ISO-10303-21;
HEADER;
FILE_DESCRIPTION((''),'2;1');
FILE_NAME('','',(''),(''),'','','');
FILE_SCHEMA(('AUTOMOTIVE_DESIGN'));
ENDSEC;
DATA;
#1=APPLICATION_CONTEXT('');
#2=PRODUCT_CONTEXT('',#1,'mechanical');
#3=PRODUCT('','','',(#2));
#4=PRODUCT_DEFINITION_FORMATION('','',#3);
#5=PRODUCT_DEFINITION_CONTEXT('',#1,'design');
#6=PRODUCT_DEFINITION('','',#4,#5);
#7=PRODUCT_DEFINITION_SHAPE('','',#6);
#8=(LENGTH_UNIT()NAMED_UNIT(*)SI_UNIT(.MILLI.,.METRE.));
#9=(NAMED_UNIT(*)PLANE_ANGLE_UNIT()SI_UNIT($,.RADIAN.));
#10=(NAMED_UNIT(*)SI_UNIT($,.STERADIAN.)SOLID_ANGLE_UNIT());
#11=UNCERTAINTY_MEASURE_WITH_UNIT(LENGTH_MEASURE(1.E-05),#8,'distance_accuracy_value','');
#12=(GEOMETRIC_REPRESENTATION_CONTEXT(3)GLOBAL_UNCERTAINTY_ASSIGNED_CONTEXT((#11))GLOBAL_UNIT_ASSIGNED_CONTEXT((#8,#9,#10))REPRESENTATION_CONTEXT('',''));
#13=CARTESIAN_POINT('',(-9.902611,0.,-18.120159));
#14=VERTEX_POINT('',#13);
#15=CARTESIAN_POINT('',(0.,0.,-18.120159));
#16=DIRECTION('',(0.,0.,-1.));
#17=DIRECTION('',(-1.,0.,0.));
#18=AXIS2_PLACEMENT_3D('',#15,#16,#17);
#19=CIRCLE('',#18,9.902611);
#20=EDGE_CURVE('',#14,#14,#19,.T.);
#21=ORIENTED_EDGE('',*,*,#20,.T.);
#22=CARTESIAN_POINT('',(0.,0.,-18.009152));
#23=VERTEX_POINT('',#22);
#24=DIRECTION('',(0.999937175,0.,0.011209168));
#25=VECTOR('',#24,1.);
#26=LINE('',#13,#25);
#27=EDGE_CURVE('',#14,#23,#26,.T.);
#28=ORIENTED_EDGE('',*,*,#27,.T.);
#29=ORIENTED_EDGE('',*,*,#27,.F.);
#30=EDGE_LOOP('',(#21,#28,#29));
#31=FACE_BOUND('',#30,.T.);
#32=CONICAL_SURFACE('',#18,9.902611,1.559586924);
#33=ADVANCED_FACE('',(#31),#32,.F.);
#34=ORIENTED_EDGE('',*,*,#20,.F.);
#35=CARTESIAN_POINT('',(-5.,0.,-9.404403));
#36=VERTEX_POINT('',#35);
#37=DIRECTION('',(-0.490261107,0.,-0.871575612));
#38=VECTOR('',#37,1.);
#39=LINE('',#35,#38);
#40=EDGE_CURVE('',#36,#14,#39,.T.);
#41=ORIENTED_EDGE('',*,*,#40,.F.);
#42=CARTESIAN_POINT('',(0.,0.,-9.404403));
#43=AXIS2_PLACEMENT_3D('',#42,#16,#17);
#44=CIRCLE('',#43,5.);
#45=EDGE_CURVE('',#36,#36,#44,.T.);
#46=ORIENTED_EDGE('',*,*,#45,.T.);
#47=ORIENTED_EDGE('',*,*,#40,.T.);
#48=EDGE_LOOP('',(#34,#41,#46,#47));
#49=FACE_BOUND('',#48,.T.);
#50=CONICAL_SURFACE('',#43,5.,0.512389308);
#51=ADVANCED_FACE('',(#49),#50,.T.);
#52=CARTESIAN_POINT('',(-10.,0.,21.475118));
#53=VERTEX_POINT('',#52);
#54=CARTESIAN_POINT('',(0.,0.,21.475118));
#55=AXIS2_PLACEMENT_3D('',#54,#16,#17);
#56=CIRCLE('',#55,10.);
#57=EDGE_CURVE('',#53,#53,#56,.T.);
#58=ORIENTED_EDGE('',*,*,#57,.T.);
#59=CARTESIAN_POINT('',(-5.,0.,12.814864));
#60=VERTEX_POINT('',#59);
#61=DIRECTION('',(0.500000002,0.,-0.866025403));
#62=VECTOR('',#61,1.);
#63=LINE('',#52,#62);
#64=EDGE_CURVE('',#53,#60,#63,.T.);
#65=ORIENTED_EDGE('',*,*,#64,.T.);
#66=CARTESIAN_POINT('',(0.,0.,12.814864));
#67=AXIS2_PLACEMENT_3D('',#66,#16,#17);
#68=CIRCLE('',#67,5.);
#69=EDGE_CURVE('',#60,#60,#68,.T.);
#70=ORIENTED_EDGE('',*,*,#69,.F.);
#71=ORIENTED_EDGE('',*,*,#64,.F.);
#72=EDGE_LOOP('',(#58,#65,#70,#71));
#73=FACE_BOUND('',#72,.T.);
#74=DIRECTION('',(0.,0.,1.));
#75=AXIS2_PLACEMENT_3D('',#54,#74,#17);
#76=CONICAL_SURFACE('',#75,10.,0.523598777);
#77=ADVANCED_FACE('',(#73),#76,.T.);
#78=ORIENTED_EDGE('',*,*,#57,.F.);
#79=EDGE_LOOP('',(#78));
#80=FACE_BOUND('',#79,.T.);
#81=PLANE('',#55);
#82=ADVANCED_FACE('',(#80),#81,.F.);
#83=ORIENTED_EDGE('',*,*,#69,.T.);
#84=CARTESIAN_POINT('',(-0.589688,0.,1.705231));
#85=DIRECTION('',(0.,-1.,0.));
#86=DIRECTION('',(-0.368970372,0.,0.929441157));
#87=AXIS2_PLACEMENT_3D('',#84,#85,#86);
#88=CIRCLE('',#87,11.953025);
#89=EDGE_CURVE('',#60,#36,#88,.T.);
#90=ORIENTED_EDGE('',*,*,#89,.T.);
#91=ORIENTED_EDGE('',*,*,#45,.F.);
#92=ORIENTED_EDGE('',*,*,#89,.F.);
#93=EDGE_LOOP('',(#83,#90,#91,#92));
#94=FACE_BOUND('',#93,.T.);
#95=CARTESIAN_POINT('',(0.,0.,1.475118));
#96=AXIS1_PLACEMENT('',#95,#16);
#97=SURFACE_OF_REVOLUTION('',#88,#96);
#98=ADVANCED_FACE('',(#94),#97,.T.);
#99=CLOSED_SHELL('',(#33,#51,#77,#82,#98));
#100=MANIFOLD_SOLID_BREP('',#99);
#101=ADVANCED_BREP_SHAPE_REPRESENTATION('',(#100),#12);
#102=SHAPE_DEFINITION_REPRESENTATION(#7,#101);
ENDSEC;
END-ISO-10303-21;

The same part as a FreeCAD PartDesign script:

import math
import FreeCAD as App
import Part
import Sketcher
Q = App.Units.Quantity

doc = App.newDocument("Part")
body = doc.addObject("PartDesign::Body", "Body")

# Sketch on XZ plane
sketch1 = body.newObject("Sketcher::SketchObject", "Sketch")
sketch1.AttachmentSupport = (doc.getObject("XZ_Plane"), [""])
sketch1.MapMode = "FlatFace"
sketch1.addGeometry(Part.LineSegment(App.Vector(0, -18, 0), App.Vector(0, 21, 0)), False)
sketch1.addGeometry(Part.LineSegment(App.Vector(0, 21, 0), App.Vector(-10, 21, 0)), False)
sketch1.addGeometry(Part.LineSegment(App.Vector(-10, 21, 0), App.Vector(-5, 13, 0)), False)
sketch1.addGeometry(Part.ArcOfCircle(Part.Circle(App.Vector(-1, 2, 0), App.Vector(0, 0, 1), 12), math.radians(112), math.radians(248)), False)
sketch1.addGeometry(Part.LineSegment(App.Vector(-5, -9, 0), App.Vector(-10, -18, 0)), False)
sketch1.addGeometry(Part.LineSegment(App.Vector(-10, -18, 0), App.Vector(0, -18, 0)), False)
sketch1.addConstraint(Sketcher.Constraint("Coincident", 0, 2, 1, 1))
sketch1.addConstraint(Sketcher.Constraint("Coincident", 1, 2, 2, 1))
sketch1.addConstraint(Sketcher.Constraint("Coincident", 2, 2, 3, 1))
sketch1.addConstraint(Sketcher.Constraint("Coincident", 3, 2, 4, 1))
sketch1.addConstraint(Sketcher.Constraint("Coincident", 4, 2, 5, 1))
sketch1.addConstraint(Sketcher.Constraint("Coincident", 5, 2, 0, 1))
sketch1.addConstraint(Sketcher.Constraint("Vertical", 0))
sketch1.addConstraint(Sketcher.Constraint("Horizontal", 1))
sketch1.addConstraint(Sketcher.Constraint("PointOnObject", 0, 2, -2))
sketch1.addConstraint(Sketcher.Constraint("Vertical", 2, 2, 3, 2))
sketch1.addConstraint(Sketcher.Constraint("Equal", 2, 4))
sketch1.addConstraint(Sketcher.Constraint("DistanceX", 1, 2, 1, 1, 10.0))
sketch1.addConstraint(Sketcher.Constraint("Angle", 2, Q("-60 deg")))
sketch1.addConstraint(Sketcher.Constraint("Distance", 2, 10.0))
sketch1.addConstraint(Sketcher.Constraint("Radius", 3, 11.953025))
sketch1.addConstraint(Sketcher.Constraint("DistanceY", 0, 1, 0, 2, 39.48427))
sketch1.addConstraint(Sketcher.Constraint("DistanceY", -1, 1, 3, 3, 1.705231))
sketch1.addConstraint(Sketcher.Constraint("DistanceX", 4, 2, -1, 1, 9.902611))
sketch1.addConstraint(Sketcher.Constraint("DistanceY", 4, 2, -1, 1, 18.120159))
revolution = body.newObject("PartDesign::Revolution", "Revolution")
revolution.Profile = sketch1
revolution.ReferenceAxis = (sketch1, ["V_Axis"])
revolution.Angle = 360

doc.recompute()
